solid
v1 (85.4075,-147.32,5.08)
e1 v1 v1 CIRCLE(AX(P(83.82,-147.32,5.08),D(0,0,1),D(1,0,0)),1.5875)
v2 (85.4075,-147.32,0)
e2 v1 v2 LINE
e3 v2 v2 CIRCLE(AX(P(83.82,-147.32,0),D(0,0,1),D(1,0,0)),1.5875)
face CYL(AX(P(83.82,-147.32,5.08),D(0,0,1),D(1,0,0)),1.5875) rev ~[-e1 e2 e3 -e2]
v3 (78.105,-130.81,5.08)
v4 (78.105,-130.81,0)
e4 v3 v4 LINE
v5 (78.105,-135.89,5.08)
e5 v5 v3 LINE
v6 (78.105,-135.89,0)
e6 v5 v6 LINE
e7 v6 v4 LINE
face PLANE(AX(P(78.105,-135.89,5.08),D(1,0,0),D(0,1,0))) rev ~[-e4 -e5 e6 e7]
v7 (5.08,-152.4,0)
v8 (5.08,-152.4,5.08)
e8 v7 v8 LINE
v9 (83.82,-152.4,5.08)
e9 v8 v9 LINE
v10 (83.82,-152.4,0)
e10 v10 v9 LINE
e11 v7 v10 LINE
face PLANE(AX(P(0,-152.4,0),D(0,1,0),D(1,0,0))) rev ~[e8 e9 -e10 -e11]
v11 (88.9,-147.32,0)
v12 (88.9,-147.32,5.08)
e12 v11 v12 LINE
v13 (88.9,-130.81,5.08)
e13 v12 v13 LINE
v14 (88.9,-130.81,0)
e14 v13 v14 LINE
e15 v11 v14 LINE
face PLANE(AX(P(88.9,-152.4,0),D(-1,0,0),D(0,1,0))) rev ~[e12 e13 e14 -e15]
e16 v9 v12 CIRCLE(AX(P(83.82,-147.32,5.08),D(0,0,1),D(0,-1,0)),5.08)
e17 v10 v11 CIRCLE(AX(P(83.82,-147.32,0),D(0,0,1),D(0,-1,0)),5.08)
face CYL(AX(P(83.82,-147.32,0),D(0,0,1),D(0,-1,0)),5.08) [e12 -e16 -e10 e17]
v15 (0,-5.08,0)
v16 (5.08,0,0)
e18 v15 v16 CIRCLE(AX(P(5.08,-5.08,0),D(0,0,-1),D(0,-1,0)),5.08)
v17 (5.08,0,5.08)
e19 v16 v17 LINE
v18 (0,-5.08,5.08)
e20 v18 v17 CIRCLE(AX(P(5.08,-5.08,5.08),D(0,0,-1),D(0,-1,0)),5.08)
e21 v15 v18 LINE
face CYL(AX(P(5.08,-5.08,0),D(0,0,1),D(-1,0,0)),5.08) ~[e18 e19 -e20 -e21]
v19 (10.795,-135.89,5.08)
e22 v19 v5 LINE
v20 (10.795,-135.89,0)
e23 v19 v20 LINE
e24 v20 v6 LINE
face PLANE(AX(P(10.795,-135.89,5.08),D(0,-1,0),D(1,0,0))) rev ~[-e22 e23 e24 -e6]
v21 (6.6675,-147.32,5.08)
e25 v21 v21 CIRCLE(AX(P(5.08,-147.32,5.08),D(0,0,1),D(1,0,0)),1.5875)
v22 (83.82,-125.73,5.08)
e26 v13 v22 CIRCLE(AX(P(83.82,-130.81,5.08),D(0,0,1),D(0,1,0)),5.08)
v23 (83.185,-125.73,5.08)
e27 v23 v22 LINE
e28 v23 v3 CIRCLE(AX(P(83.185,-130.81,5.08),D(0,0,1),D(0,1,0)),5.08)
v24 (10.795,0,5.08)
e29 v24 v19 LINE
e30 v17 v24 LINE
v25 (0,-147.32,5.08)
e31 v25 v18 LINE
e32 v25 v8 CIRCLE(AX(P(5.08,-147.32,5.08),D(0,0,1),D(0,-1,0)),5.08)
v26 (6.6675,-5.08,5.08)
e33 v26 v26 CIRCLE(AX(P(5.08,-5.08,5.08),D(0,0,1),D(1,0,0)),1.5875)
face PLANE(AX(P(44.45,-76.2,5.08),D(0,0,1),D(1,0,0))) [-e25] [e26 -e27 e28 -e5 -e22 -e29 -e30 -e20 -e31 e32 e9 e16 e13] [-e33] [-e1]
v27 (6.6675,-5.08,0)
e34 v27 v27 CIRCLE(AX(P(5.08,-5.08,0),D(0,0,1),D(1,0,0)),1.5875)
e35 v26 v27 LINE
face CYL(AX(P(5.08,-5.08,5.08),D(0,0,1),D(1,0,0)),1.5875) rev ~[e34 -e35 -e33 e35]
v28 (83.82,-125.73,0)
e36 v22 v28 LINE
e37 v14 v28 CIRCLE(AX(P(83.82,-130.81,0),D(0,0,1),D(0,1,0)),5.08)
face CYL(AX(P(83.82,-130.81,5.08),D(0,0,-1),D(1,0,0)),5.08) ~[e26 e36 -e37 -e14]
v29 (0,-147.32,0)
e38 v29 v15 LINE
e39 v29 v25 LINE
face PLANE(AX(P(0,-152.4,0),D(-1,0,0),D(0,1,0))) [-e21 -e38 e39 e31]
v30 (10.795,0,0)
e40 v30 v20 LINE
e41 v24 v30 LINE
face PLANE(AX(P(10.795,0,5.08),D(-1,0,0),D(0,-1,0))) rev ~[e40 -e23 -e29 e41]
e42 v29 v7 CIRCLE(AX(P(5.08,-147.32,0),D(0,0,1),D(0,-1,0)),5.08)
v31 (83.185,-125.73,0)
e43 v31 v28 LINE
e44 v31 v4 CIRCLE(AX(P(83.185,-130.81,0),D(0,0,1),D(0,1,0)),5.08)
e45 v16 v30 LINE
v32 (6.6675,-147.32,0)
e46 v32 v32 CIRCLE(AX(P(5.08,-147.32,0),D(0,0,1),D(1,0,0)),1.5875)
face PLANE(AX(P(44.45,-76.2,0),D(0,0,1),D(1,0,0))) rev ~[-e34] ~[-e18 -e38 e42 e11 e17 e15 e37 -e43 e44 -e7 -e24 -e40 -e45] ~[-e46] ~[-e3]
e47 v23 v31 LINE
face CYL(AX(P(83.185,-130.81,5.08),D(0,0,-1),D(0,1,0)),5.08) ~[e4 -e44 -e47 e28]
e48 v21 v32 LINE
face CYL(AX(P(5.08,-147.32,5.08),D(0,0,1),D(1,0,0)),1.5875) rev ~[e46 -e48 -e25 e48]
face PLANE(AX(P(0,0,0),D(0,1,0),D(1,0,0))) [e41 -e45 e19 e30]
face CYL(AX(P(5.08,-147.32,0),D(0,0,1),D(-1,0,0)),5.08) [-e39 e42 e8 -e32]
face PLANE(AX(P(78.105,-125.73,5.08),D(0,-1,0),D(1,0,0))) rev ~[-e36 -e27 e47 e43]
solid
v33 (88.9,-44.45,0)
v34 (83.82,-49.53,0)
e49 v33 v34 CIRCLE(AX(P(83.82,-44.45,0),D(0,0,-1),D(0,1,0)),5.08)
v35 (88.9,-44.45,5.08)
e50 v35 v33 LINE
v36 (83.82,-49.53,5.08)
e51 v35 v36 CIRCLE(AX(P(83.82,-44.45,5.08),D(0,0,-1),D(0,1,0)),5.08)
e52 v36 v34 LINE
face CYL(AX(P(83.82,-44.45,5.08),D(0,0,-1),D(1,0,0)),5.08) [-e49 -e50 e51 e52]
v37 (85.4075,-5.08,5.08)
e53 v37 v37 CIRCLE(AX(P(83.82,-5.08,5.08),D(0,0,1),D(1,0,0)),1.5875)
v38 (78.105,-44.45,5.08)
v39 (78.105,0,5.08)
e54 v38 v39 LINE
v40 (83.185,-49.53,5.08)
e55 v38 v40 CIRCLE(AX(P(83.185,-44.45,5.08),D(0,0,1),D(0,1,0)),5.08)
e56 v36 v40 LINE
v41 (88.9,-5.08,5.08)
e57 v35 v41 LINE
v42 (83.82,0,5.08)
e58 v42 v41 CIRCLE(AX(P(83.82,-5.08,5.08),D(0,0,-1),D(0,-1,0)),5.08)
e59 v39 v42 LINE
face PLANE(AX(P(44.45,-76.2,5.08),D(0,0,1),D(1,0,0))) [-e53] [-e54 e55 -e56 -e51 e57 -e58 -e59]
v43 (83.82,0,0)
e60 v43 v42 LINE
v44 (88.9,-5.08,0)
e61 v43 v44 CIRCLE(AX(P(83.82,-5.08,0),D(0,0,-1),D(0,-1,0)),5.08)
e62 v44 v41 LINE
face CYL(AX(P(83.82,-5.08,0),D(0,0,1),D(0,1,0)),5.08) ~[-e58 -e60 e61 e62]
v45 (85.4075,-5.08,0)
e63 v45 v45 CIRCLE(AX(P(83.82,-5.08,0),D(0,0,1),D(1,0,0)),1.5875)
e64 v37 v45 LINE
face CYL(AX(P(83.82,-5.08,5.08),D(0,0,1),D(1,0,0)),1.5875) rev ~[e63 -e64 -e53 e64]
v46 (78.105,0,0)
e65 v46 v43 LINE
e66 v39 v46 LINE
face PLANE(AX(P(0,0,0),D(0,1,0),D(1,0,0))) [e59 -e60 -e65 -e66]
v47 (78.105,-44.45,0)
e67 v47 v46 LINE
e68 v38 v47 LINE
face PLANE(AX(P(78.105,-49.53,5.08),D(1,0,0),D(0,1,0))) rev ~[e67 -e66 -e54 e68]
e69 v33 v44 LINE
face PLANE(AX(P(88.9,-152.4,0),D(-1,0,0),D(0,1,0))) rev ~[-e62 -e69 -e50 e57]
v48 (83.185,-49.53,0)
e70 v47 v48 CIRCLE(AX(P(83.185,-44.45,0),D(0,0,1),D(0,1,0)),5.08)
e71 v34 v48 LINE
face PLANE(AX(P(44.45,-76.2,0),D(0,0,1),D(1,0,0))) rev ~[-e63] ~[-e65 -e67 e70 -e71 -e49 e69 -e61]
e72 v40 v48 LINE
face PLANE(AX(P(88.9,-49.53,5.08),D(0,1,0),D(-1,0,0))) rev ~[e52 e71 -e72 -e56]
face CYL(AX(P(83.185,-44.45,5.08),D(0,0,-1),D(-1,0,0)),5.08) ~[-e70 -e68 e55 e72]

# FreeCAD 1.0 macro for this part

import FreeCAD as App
import Part
import Sketcher
Q = App.Units.Quantity


def edges_at(feature, points):
    """Names of the edges that pass closest to the given points."""
    edges = feature.Shape.Edges
    near = lambda p: min(range(len(edges)), key=lambda i: edges[i].distToShape(Part.Vertex(*p))[0])
    return sorted({f"Edge{near(p) + 1}" for p in points})

doc = App.newDocument("Part")
body = doc.addObject("PartDesign::Body", "Body")
body.AllowCompound = True

# Sketch on XY plane
sketch1 = body.newObject("Sketcher::SketchObject", "Sketch")
sketch1.AttachmentSupport = (doc.getObject("XY_Plane"), [""])
sketch1.MapMode = "FlatFace"
sketch1.addGeometry(Part.LineSegment(App.Vector(0, 0, 0), App.Vector(0, -152, 0)), False)
sketch1.addGeometry(Part.LineSegment(App.Vector(0, -152, 0), App.Vector(89, -152, 0)), False)
sketch1.addGeometry(Part.LineSegment(App.Vector(89, -152, 0), App.Vector(89, 0, 0)), False)
sketch1.addGeometry(Part.LineSegment(App.Vector(89, 0, 0), App.Vector(0, 0, 0)), False)
sketch1.addConstraint(Sketcher.Constraint("Coincident", 0, 2, 1, 1))
sketch1.addConstraint(Sketcher.Constraint("Coincident", 1, 2, 2, 1))
sketch1.addConstraint(Sketcher.Constraint("Coincident", 2, 2, 3, 1))
sketch1.addConstraint(Sketcher.Constraint("Coincident", 3, 2, 0, 1))
sketch1.addConstraint(Sketcher.Constraint("Vertical", 0))
sketch1.addConstraint(Sketcher.Constraint("Horizontal", 1))
sketch1.addConstraint(Sketcher.Constraint("Vertical", 2))
sketch1.addConstraint(Sketcher.Constraint("Horizontal", 3))
sketch1.addConstraint(Sketcher.Constraint("Coincident", 3, 2, -1, 1))
sketch1.addConstraint(Sketcher.Constraint("DistanceY", 0, 2, 0, 1, Q("6 in")))
sketch1.addConstraint(Sketcher.Constraint("DistanceX", 1, 1, 1, 2, Q("3.5 in")))
pad1 = body.newObject("PartDesign::Pad", "Pad")
pad1.Profile = sketch1
pad1.Length = Q("0.2 in")

# Sketch on XY plane
sketch2 = body.newObject("Sketcher::SketchObject", "Sketch001")
sketch2.AttachmentSupport = (doc.getObject("XY_Plane"), [""])
sketch2.MapMode = "FlatFace"
sketch2.AttachmentOffset = App.Placement(App.Vector(0, 0, 0.2 * 25.4), App.Rotation())
sketch2.addGeometry(Part.LineSegment(App.Vector(78, 0, 0), App.Vector(11, 0, 0)), False)
sketch2.addGeometry(Part.LineSegment(App.Vector(11, 0, 0), App.Vector(11, -136, 0)), False)
sketch2.addGeometry(Part.LineSegment(App.Vector(11, -136, 0), App.Vector(78, -136, 0)), False)
sketch2.addGeometry(Part.LineSegment(App.Vector(78, -136, 0), App.Vector(78, -126, 0)), False)
sketch2.addGeometry(Part.LineSegment(App.Vector(78, -126, 0), App.Vector(89, -126, 0)), False)
sketch2.addGeometry(Part.LineSegment(App.Vector(89, -126, 0), App.Vector(89, -50, 0)), False)
sketch2.addGeometry(Part.LineSegment(App.Vector(89, -50, 0), App.Vector(78, -50, 0)), False)
sketch2.addGeometry(Part.LineSegment(App.Vector(78, -50, 0), App.Vector(78, 0, 0)), False)
sketch2.addConstraint(Sketcher.Constraint("Coincident", 0, 2, 1, 1))
sketch2.addConstraint(Sketcher.Constraint("Coincident", 1, 2, 2, 1))
sketch2.addConstraint(Sketcher.Constraint("Coincident", 2, 2, 3, 1))
sketch2.addConstraint(Sketcher.Constraint("Coincident", 3, 2, 4, 1))
sketch2.addConstraint(Sketcher.Constraint("Coincident", 4, 2, 5, 1))
sketch2.addConstraint(Sketcher.Constraint("Coincident", 5, 2, 6, 1))
sketch2.addConstraint(Sketcher.Constraint("Coincident", 6, 2, 7, 1))
sketch2.addConstraint(Sketcher.Constraint("Coincident", 7, 2, 0, 1))
sketch2.addConstraint(Sketcher.Constraint("Horizontal", 0))
sketch2.addConstraint(Sketcher.Constraint("Vertical", 1))
sketch2.addConstraint(Sketcher.Constraint("Horizontal", 2))
sketch2.addConstraint(Sketcher.Constraint("Vertical", 3))
sketch2.addConstraint(Sketcher.Constraint("Horizontal", 4))
sketch2.addConstraint(Sketcher.Constraint("Vertical", 5))
sketch2.addConstraint(Sketcher.Constraint("Horizontal", 6))
sketch2.addConstraint(Sketcher.Constraint("Vertical", 7))
sketch2.addConstraint(Sketcher.Constraint("PointOnObject", 0, 2, -1))
sketch2.addConstraint(Sketcher.Constraint("Vertical", 3, 2, 6, 2))
sketch2.addConstraint(Sketcher.Constraint("DistanceY", 5, 1, 5, 2, Q("3 in")))
sketch2.addConstraint(Sketcher.Constraint("DistanceY", 3, 1, 3, 2, Q("0.4 in")))
sketch2.addConstraint(Sketcher.Constraint("DistanceX", 0, 2, 0, 1, Q("2.65 in")))
sketch2.addConstraint(Sketcher.Constraint("DistanceY", 1, 2, 1, 1, Q("5.35 in")))
sketch2.addConstraint(Sketcher.Constraint("DistanceX", -1, 1, 4, 2, Q("3.5 in")))
sketch2.addConstraint(Sketcher.Constraint("DistanceX", 4, 1, 4, 2, Q("0.425 in")))
pocket1 = body.newObject("PartDesign::Pocket", "Pocket")
pocket1.Profile = sketch2
pocket1.Length = Q("1 in")

# Sketch on XY plane
sketch3 = body.newObject("Sketcher::SketchObject", "Sketch002")
sketch3.AttachmentSupport = (doc.getObject("XY_Plane"), [""])
sketch3.MapMode = "FlatFace"
sketch3.AttachmentOffset = App.Placement(App.Vector(0, 0, 0.2 * 25.4), App.Rotation())
sketch3.addGeometry(Part.Circle(App.Vector(5.1, -147.3, 0), App.Vector(0, 0, 1), 1.6), False)
sketch3.addGeometry(Part.Circle(App.Vector(83.8, -147.3, 0), App.Vector(0, 0, 1), 1.6), False)
sketch3.addGeometry(Part.Circle(App.Vector(83.8, -5.1, 0), App.Vector(0, 0, 1), 1.6), False)
sketch3.addGeometry(Part.Circle(App.Vector(5.1, -5.1, 0), App.Vector(0, 0, 1), 1.6), False)
sketch3.addConstraint(Sketcher.Constraint("Equal", 0, 1))
sketch3.addConstraint(Sketcher.Constraint("Equal", 1, 2))
sketch3.addConstraint(Sketcher.Constraint("Equal", 2, 3))
sketch3.addConstraint(Sketcher.Constraint("Horizontal", 0, 3, 1, 3))
sketch3.addConstraint(Sketcher.Constraint("Horizontal", 2, 3, 3, 3))
sketch3.addConstraint(Sketcher.Constraint("Vertical", 1, 3, 2, 3))
sketch3.addConstraint(Sketcher.Constraint("Vertical", 0, 3, 3, 3))
sketch3.addConstraint(Sketcher.Constraint("Diameter", 0, Q("0.125 in")))
sketch3.addConstraint(Sketcher.Constraint("DistanceX", -1, 1, 0, 3, Q("0.2 in")))
sketch3.addConstraint(Sketcher.Constraint("DistanceY", 0, 3, -1, 1, Q("5.8 in")))
sketch3.addConstraint(Sketcher.Constraint("DistanceX", -1, 1, 1, 3, Q("3.3 in")))
sketch3.addConstraint(Sketcher.Constraint("DistanceY", 2, 3, -1, 1, Q("0.2 in")))
pocket2 = body.newObject("PartDesign::Pocket", "Pocket001")
pocket2.Profile = sketch3
pocket2.Length = Q("1 in")
doc.recompute()

fillet = body.newObject("PartDesign::Fillet", "Fillet")
fillet.Base = (pocket2, edges_at(pocket2, [
    (0, -152.4, 2.54),
    (88.9, -152.4, 2.54),
    (0, 0, 2.54),
    (88.9, 0, 2.54),
    (78.105, -49.53, 2.54),
    (88.9, -49.53, 2.54),
    (88.9, -125.73, 2.54),
    (78.105, -125.73, 2.54),
]))
fillet.Radius = Q("0.2 in")

doc.recompute()
